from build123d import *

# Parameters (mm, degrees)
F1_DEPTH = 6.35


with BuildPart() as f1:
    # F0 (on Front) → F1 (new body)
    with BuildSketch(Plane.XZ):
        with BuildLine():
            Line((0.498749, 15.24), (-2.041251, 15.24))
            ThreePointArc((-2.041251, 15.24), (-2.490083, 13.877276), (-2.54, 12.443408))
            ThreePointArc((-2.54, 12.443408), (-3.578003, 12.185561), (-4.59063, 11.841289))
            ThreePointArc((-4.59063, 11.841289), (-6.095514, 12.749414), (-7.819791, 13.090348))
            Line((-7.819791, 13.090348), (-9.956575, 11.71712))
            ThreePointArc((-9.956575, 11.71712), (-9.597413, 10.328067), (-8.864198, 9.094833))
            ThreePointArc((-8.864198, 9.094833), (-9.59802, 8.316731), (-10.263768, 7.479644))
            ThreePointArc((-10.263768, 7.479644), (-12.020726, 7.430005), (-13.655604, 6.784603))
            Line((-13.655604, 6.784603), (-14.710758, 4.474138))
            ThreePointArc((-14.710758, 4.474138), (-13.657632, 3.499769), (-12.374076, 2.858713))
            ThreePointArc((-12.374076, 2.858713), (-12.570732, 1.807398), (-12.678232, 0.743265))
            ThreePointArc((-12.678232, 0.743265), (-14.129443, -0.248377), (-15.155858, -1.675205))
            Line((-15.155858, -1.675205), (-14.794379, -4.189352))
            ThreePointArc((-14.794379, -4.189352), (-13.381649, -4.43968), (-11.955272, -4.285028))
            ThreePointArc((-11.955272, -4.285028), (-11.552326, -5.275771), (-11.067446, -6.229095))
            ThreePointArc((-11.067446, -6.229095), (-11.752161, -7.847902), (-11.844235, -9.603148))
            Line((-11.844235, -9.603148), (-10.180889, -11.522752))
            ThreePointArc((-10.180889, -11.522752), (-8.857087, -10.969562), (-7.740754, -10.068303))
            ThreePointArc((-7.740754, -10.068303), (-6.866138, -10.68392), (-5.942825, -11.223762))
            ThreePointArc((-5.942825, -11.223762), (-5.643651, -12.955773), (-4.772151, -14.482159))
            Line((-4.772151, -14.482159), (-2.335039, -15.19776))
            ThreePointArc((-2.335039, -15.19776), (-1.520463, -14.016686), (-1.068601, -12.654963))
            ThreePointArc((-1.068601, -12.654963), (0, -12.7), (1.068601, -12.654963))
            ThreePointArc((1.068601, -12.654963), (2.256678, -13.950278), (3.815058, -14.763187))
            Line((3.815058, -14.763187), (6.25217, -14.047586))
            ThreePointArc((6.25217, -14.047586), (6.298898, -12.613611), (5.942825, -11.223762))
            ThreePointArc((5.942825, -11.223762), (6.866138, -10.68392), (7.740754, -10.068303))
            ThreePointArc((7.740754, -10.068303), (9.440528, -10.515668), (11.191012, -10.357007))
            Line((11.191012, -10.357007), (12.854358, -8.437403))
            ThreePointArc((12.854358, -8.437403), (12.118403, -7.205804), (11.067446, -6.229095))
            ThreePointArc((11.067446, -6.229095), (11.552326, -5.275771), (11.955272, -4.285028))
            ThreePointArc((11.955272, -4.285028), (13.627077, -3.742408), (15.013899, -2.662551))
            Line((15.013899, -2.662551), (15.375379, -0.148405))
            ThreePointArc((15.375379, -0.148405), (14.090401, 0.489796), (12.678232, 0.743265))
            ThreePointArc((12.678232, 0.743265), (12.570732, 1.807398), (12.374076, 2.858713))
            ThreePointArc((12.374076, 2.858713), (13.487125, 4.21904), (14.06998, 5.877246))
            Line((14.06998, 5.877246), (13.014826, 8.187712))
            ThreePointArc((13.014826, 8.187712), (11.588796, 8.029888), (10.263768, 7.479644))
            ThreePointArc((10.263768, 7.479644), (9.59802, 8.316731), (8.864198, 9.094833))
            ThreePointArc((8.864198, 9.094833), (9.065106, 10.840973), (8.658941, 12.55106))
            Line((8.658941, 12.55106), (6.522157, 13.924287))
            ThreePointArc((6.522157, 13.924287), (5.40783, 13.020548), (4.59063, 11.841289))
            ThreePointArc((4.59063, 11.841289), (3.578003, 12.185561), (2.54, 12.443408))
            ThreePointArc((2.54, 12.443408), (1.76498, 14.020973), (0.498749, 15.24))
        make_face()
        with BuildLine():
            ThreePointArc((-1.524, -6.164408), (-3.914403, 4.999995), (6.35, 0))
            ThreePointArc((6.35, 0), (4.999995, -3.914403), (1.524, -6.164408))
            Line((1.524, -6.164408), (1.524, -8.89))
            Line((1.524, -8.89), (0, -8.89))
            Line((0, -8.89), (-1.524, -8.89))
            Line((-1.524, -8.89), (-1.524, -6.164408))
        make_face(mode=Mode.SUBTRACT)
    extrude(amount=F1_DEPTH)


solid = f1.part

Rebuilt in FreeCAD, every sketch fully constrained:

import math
import FreeCAD as App
import Part
import Sketcher

V = App.Vector
Q = App.Units.Quantity

doc = App.newDocument("Part")
body = doc.addObject("PartDesign::Body", "Body")

# Sketch on XZ plane
sketch1 = doc.addObject("Sketcher::SketchObject", "Sketch")
body.addObject(sketch1)
sketch1.AttachmentSupport = (doc.XZ_Plane, [""])
sketch1.MapMode = "FlatFace"
sketch1.addGeometry([
    Part.LineSegment(V(0.498749, 15.24, 0), V(-2.041251, 15.24, 0)),  # 0
    Part.ArcOfCircle(Part.Circle(V(2.511018, 12.985371, 0), V(0, 0, 1), 5.080011), math.radians(153.651893), math.radians(186.124275)),  # 1
    Part.ArcOfCircle(Part.Circle(V(0.000009, -0.000037, 0), V(0, 0, 1), 12.700039), math.radians(101.536967), math.radians(111.190291)),  # 2
    Part.ArcOfCircle(Part.Circle(V(-7.928164, 8.01151, 0), V(0, 0, 1), 5.079994), math.radians(48.928856), math.radians(88.7776)),  # 3
    Part.LineSegment(V(-7.819791, 13.090348, 0), V(-9.956575, 11.71712, 0)),  # 4
    Part.ArcOfCircle(Part.Circle(V(-4.908026, 12.281543, 0), V(0, 0, 1), 5.080002), math.radians(-173.62087), math.radians(-141.148433)),  # 5
    Part.ArcOfCircle(Part.Circle(V(-0.000017, 0.00001, 0), V(0, 0, 1), 12.699981), math.radians(134.264209), math.radians(143.917578)),  # 6
    Part.ArcOfCircle(Part.Circle(V(-11.000943, 2.453408, 0), V(0, 0, 1), 5.080008), math.radians(81.65618), math.radians(121.50482)),  # 7
    Part.LineSegment(V(-13.655604, 6.784603, 0), V(-14.710758, 4.474138, 0)),  # 8
    Part.ArcOfCircle(Part.Circle(V(-10.7688, 7.67841, 0), V(0, 0, 1), 5.079999), math.radians(-140.893609), math.radians(-108.421147)),  # 9
    Part.ArcOfCircle(Part.Circle(V(0.000139, -0.000023, 0), V(0, 0, 1), 12.70014), math.radians(166.991545), math.radians(176.644792)),  # 10
    Part.ArcOfCircle(Part.Circle(V(-10.581003, -3.883612, 0), V(0, 0, 1), 5.079996), math.radians(114.383408), math.radians(154.232132)),  # 11
    Part.LineSegment(V(-15.155858, -1.675205, 0), V(-14.794379, -4.189352, 0)),  # 12
    Part.ArcOfCircle(Part.Circle(V(-13.210554, 0.637446, 0), V(0, 0, 1), 5.080008), math.radians(-108.166304), math.radians(-75.693894)),  # 13
    Part.ArcOfCircle(Part.Circle(V(-0.000063, -0.000027, 0), V(0, 0, 1), 12.699932), math.radians(-160.28124), math.radians(-150.627834)),  # 14
    Part.ArcOfCircle(Part.Circle(V(-6.801667, -8.987625, 0), V(0, 0, 1), 5.079996), math.radians(147.110662), math.radians(186.959399)),  # 15
    Part.LineSegment(V(-11.844235, -9.603148, 0), V(-10.180889, -11.522752, 0)),  # 16
    Part.ArcOfCircle(Part.Circle(V(-11.45805, -6.605916, 0), V(0, 0, 1), 5.080001), math.radians(-75.439056), math.radians(-42.966606)),  # 17
    Part.ArcOfCircle(Part.Circle(V(0.000016, 0.000023, 0), V(0, 0, 1), 12.700028), math.radians(-127.553945), math.radians(-117.900609)),  # 18
    Part.ArcOfCircle(Part.Circle(V(-0.86285, -11.238131, 0), V(0, 0, 1), 5.079995), math.radians(179.837937), math.radians(219.68667)),  # 19
    Part.LineSegment(V(-4.772151, -14.482159, 0), V(-2.335039, -15.19776, 0)),  # 20
    Part.ArcOfCircle(Part.Circle(V(-6.067697, -11.75194, 0), V(0, 0, 1), 5.080001), math.radians(-42.711791), math.radians(-10.239335)),  # 21
    Part.ArcOfCircle(Part.Circle(V(0, -0.000037, 0), V(0, 0, 1), 12.699963), math.radians(-94.826692), math.radians(-85.173308)),  # 22
    Part.ArcOfCircle(Part.Circle(V(5.349913, -9.920613, 0), V(0, 0, 1), 5.07999), math.radians(-147.434809), math.radians(-107.586024)),  # 23
    Part.LineSegment(V(3.815058, -14.763187, 0), V(6.25217, -14.047586, 0)),  # 24
    Part.ArcOfCircle(Part.Circle(V(1.249115, -13.166806, 0), V(0, 0, 1), 5.079994), math.radians(-9.984522), math.radians(22.487969)),  # 25
    Part.ArcOfCircle(Part.Circle(V(-0.000016, 0.000023, 0), V(0, 0, 1), 12.700028), math.radians(-62.099391), math.radians(-52.446055)),  # 26
    Part.ArcOfCircle(Part.Circle(V(9.864122, -5.453366, 0), V(0, 0, 1), 5.079994), math.radians(-114.707516), math.radians(-74.858769)),  # 27
    Part.LineSegment(V(11.191012, -10.357007, 0), V(12.854358, -8.437403, 0)),  # 28
    Part.ArcOfCircle(Part.Circle(V(8.169326, -10.401305, 0), V(0, 0, 1), 5.080004), math.radians(22.742772), math.radians(55.215202)),  # 29
    Part.ArcOfCircle(Part.Circle(V(0.000063, -0.000027, 0), V(0, 0, 1), 12.699932), math.radians(-29.372166), math.radians(-19.71876)),  # 30
    Part.ArcOfCircle(Part.Circle(V(11.246539, 0.745284, 0), V(0, 0, 1), 5.079995), math.radians(-81.980242), math.radians(-42.131501)),  # 31
    Part.LineSegment(V(15.013899, -2.662551, 0), V(15.375379, -0.148405, 0)),  # 32
    Part.ArcOfCircle(Part.Circle(V(12.495849, -4.333447, 0), V(0, 0, 1), 5.079987), math.radians(55.469975), math.radians(87.942514)),  # 33
    Part.ArcOfCircle(Part.Circle(V(-0.000139, -0.000023, 0), V(0, 0, 1), 12.70014), math.radians(3.355208), math.radians(13.008455)),  # 34
    Part.ArcOfCircle(Part.Circle(V(9.058252, 6.707316, 0), V(0, 0, 1), 5.080004), math.radians(-49.252942), math.radians(-9.404272)),  # 35
    Part.LineSegment(V(14.06998, 5.877246, 0), V(13.014826, 8.187712, 0)),  # 36
    Part.ArcOfCircle(Part.Circle(V(12.855023, 3.110217, 0), V(0, 0, 1), 5.080009), math.radians(88.197332), math.radians(120.669729)),  # 37
    Part.ArcOfCircle(Part.Circle(V(0.000017, 0.00001, 0), V(0, 0, 1), 12.699981), math.radians(36.082422), math.radians(45.735791)),  # 38
    Part.ArcOfCircle(Part.Circle(V(3.994035, 10.539814, 0), V(0, 0, 1), 5.080006), math.radians(-16.525662), math.radians(23.322995)),  # 39
    Part.LineSegment(V(8.658941, 12.55106, 0), V(6.522157, 13.924287, 0)),  # 40
    Part.ArcOfCircle(Part.Circle(V(9.132811, 9.56644, 0), V(0, 0, 1), 5.079995), math.radians(120.924544), math.radians(153.397031)),  # 41
    Part.ArcOfCircle(Part.Circle(V(-0.000009, -0.000037, 0), V(0, 0, 1), 12.700039), math.radians(68.809709), math.radians(78.463033)),  # 42
    Part.ArcOfCircle(Part.Circle(V(-2.338255, 11.025995, 0), V(0, 0, 1), 5.080003), math.radians(16.201615), math.radians(56.050292)),  # 43
    Part.LineSegment(V(-1.524, -8.89, 0), V(-1.524, -6.164408, 0)),  # 44
    Part.ArcOfCircle(Part.Circle(V(0, 0, 0), V(0, 0, 1), 6.35), math.radians(0.000001), math.radians(256.11346)),  # 45
    Part.ArcOfCircle(Part.Circle(V(0, 0, 0), V(0, 0, 1), 6.35), math.radians(-76.113459), math.radians(0.000001)),  # 46
    Part.LineSegment(V(1.524, -6.164408, 0), V(1.524, -8.89, 0)),  # 47
    Part.LineSegment(V(1.524, -8.89, 0), V(-1.524, -8.89, 0)),  # 48
], False)
sketch1.addConstraint([
    Sketcher.Constraint("Coincident", 0, 2, 1, 1),
    Sketcher.Constraint("Coincident", 1, 2, 2, 1),
    Sketcher.Constraint("Coincident", 2, 2, 3, 1),
    Sketcher.Constraint("Coincident", 3, 2, 4, 1),
    Sketcher.Constraint("Coincident", 4, 2, 5, 1),
    Sketcher.Constraint("Coincident", 5, 2, 6, 1),
    Sketcher.Constraint("Coincident", 6, 2, 7, 1),
    Sketcher.Constraint("Coincident", 7, 2, 8, 1),
    Sketcher.Constraint("Coincident", 8, 2, 9, 1),
    Sketcher.Constraint("Coincident", 9, 2, 10, 1),
    Sketcher.Constraint("Coincident", 10, 2, 11, 1),
    Sketcher.Constraint("Coincident", 11, 2, 12, 1),
    Sketcher.Constraint("Coincident", 12, 2, 13, 1),
    Sketcher.Constraint("Coincident", 13, 2, 14, 1),
    Sketcher.Constraint("Coincident", 14, 2, 15, 1),
    Sketcher.Constraint("Coincident", 15, 2, 16, 1),
    Sketcher.Constraint("Coincident", 16, 2, 17, 1),
    Sketcher.Constraint("Coincident", 17, 2, 18, 1),
    Sketcher.Constraint("Coincident", 18, 2, 19, 1),
    Sketcher.Constraint("Coincident", 19, 2, 20, 1),
    Sketcher.Constraint("Coincident", 20, 2, 21, 1),
    Sketcher.Constraint("Coincident", 21, 2, 22, 1),
    Sketcher.Constraint("Coincident", 22, 2, 23, 1),
    Sketcher.Constraint("Coincident", 23, 2, 24, 1),
    Sketcher.Constraint("Coincident", 24, 2, 25, 1),
    Sketcher.Constraint("Coincident", 25, 2, 26, 1),
    Sketcher.Constraint("Coincident", 26, 2, 27, 1),
    Sketcher.Constraint("Coincident", 27, 2, 28, 1),
    Sketcher.Constraint("Coincident", 28, 2, 29, 1),
    Sketcher.Constraint("Coincident", 29, 2, 30, 1),
    Sketcher.Constraint("Coincident", 30, 2, 31, 1),
    Sketcher.Constraint("Coincident", 31, 2, 32, 1),
    Sketcher.Constraint("Coincident", 32, 2, 33, 1),
    Sketcher.Constraint("Coincident", 33, 2, 34, 1),
    Sketcher.Constraint("Coincident", 34, 2, 35, 1),
    Sketcher.Constraint("Coincident", 35, 2, 36, 1),
    Sketcher.Constraint("Coincident", 36, 2, 37, 1),
    Sketcher.Constraint("Coincident", 37, 2, 38, 1),
    Sketcher.Constraint("Coincident", 38, 2, 39, 1),
    Sketcher.Constraint("Coincident", 39, 2, 40, 1),
    Sketcher.Constraint("Coincident", 40, 2, 41, 1),
    Sketcher.Constraint("Coincident", 41, 2, 42, 1),
    Sketcher.Constraint("Coincident", 42, 2, 43, 1),
    Sketcher.Constraint("Coincident", 43, 2, 0, 1),
    Sketcher.Constraint("Coincident", 44, 2, 45, 2),
    Sketcher.Constraint("Tangent", 45, 1, 46, 2),
    Sketcher.Constraint("Coincident", 46, 1, 47, 1),
    Sketcher.Constraint("Coincident", 47, 2, 48, 1),
    Sketcher.Constraint("Coincident", 48, 2, 44, 1),
    Sketcher.Constraint("Horizontal", 0),
    Sketcher.Constraint("Vertical", 44),
    Sketcher.Constraint("Vertical", 47),
    Sketcher.Constraint("Horizontal", 48),
    Sketcher.Constraint("Coincident", 45, 3, -1, 1),
    Sketcher.Constraint("Coincident", 22, 3, 2, 3),
    Sketcher.Constraint("Coincident", 42, 3, 22, 3),
    Sketcher.Constraint("Equal", 7, 13),
    Sketcher.Constraint("Equal", 11, 15),
    Sketcher.Constraint("Equal", 9, 17),
    Sketcher.Constraint("Equal", 15, 19),
    Sketcher.Constraint("Equal", 17, 21),
    Sketcher.Constraint("Equal", 19, 25),
    Sketcher.Constraint("Equal", 18, 26),
    Sketcher.Constraint("Equal", 25, 27),
    Sketcher.Constraint("Equal", 5, 29),
    Sketcher.Constraint("Equal", 14, 30),
    Sketcher.Constraint("Equal", 27, 31),
    Sketcher.Constraint("Equal", 10, 34),
    Sketcher.Constraint("Equal", 29, 35),
    Sketcher.Constraint("Equal", 13, 37),
    Sketcher.Constraint("Equal", 6, 38),
    Sketcher.Constraint("Equal", 13, 39),
    Sketcher.Constraint("Equal", 31, 41),
    Sketcher.Constraint("Equal", 2, 42),
    Sketcher.Constraint("Equal", 35, 43),
    Sketcher.Constraint("Equal", 45, 46),
    Sketcher.Constraint("Symmetric", 18, 3, 26, 3, -2),
    Sketcher.Constraint("Symmetric", 14, 3, 30, 3, -2),
    Sketcher.Constraint("Symmetric", 10, 3, 34, 3, -2),
    Sketcher.Constraint("Symmetric", 6, 3, 38, 3, -2),
    Sketcher.Constraint("Symmetric", 21, 2, 22, 2, -2),
    Sketcher.Constraint("PointOnObject", 45, 1, -1),
    Sketcher.Constraint("Horizontal", 18, 2, 25, 2),
    Sketcher.Constraint("Horizontal", 17, 2, 26, 2),
    Sketcher.Constraint("Horizontal", 14, 2, 29, 2),
    Sketcher.Constraint("Horizontal", 13, 2, 30, 2),
    Sketcher.Constraint("Horizontal", 10, 2, 33, 2),
    Sketcher.Constraint("Horizontal", 9, 2, 34, 2),
    Sketcher.Constraint("Horizontal", 6, 2, 37, 2),
    Sketcher.Constraint("Horizontal", 5, 2, 38, 2),
    Sketcher.Constraint("Horizontal", 2, 2, 41, 2),
    Sketcher.Constraint("Horizontal", 1, 2, 42, 2),
    Sketcher.Constraint("Horizontal", 44, 2, 46, 1),
    Sketcher.Constraint("Vertical", 6, 3, 26, 3),
    Sketcher.Constraint("Equal", 4, 8),
    Sketcher.Constraint("Equal", 8, 12),
    Sketcher.Constraint("Equal", 12, 16),
    Sketcher.Constraint("Equal", 16, 20),
    Sketcher.Constraint("Equal", 20, 24),
    Sketcher.Constraint("Equal", 24, 28),
    Sketcher.Constraint("Equal", 28, 32),
    Sketcher.Constraint("Equal", 32, 36),
    Sketcher.Constraint("Equal", 36, 40),
    Sketcher.Constraint("Radius", 5, Q("0.2000001 in")),
    Sketcher.Constraint("Radius", 9, Q("0.2 in")),
    Sketcher.Constraint("Radius", 11, Q("0.1999998 in")),
    Sketcher.Constraint("Radius", 45, Q("0.25 in")),
    Sketcher.Constraint("DistanceX", 0, 2, 0, 1, Q("0.1 in")),
    Sketcher.Constraint("Distance", 4, Q("0.1 in")),
    Sketcher.Constraint("DistanceX", 48, 2, 48, 1, Q("0.12 in")),
    Sketcher.Constraint("DistanceY", -1, 1, 0, 2, Q("0.6 in")),
    Sketcher.Constraint("DistanceX", 1, 2, -1, 1, Q("0.1 in")),
    Sketcher.Constraint("DistanceY", 47, 2, -1, 1, Q("0.35 in")),
    Sketcher.Constraint("Radius", 1, Q("5.080011 mm")),
    Sketcher.Constraint("Radius", 2, Q("12.700039 mm")),
    Sketcher.Constraint("Radius", 6, Q("12.699981 mm")),
    Sketcher.Constraint("Radius", 10, Q("12.70014 mm")),
    Sketcher.Constraint("Radius", 14, Q("12.699932 mm")),
    Sketcher.Constraint("Radius", 23, Q("5.07999 mm")),
    Sketcher.Constraint("Radius", 37, Q("5.080009 mm")),
    Sketcher.Constraint("Radius", 3, Q("5.079994 mm")),
    Sketcher.Constraint("Radius", 18, Q("12.700028 mm")),
    Sketcher.Constraint("Radius", 22, Q("12.699963 mm")),
    Sketcher.Constraint("Radius", 33, Q("5.079987 mm")),
    Sketcher.Constraint("DistanceX", 9, 3, -1, 1, Q("10.7688 mm")),
    Sketcher.Constraint("DistanceX", 5, 2, -1, 1, Q("8.864198 mm")),
    Sketcher.Constraint("DistanceX", 21, 2, -1, 1, Q("1.068601 mm")),
    Sketcher.Constraint("DistanceX", -1, 1, 31, 2, Q("15.013899 mm")),
    Sketcher.Constraint("DistanceX", -1, 1, 1, 3, Q("2.511018 mm")),
    Sketcher.Constraint("DistanceY", -1, 1, 1, 3, Q("12.985371 mm")),
    Sketcher.Constraint("DistanceY", -1, 1, 3, 3, Q("8.01151 mm")),
    Sketcher.Constraint("DistanceY", -1, 1, 9, 3, Q("7.67841 mm")),
    Sketcher.Constraint("DistanceX", -1, 1, 10, 3, Q("0.000139 mm")),
    Sketcher.Constraint("DistanceX", 17, 3, -1, 1, Q("11.45805 mm")),
    Sketcher.Constraint("DistanceX", 19, 3, -1, 1, Q("0.86285 mm")),
    Sketcher.Constraint("DistanceY", 19, 3, -1, 1, Q("11.238131 mm")),
    Sketcher.Constraint("DistanceY", 21, 3, -1, 1, Q("11.75194 mm")),
    Sketcher.Constraint("DistanceX", -1, 1, 27, 3, Q("9.864122 mm")),
    Sketcher.Constraint("DistanceX", -1, 1, 31, 3, Q("11.246539 mm")),
    Sketcher.Constraint("DistanceX", -1, 1, 33, 3, Q("12.495849 mm")),
    Sketcher.Constraint("DistanceX", -1, 1, 35, 3, Q("9.058252 mm")),
    Sketcher.Constraint("DistanceX", -1, 1, 41, 3, Q("9.132811 mm")),
    Sketcher.Constraint("DistanceY", -1, 1, 41, 3, Q("9.56644 mm")),
    Sketcher.Constraint("DistanceX", 3, 2, -1, 1, Q("7.819791 mm")),
    Sketcher.Constraint("DistanceY", -1, 1, 4, 2, Q("11.71712 mm")),
    Sketcher.Constraint("DistanceX", 10, 2, -1, 1, Q("12.678232 mm")),
    Sketcher.Constraint("DistanceX", 11, 2, -1, 1, Q("15.155858 mm")),
    Sketcher.Constraint("DistanceX", 12, 2, -1, 1, Q("14.794379 mm")),
    Sketcher.Constraint("DistanceX", 13, 2, -1, 1, Q("11.955272 mm")),
    Sketcher.Constraint("DistanceY", 13, 2, -1, 1, Q("4.285028 mm")),
    Sketcher.Constraint("DistanceY", 15, 2, -1, 1, Q("9.603148 mm")),
    Sketcher.Constraint("DistanceX", 16, 2, -1, 1, Q("10.180889 mm")),
    Sketcher.Constraint("DistanceY", 18, 2, -1, 1, Q("11.223762 mm")),
    Sketcher.Constraint("DistanceX", 19, 2, -1, 1, Q("4.772151 mm")),
    Sketcher.Constraint("DistanceX", -1, 1, 24, 2, Q("6.25217 mm")),
    Sketcher.Constraint("DistanceX", -1, 1, 27, 2, Q("11.191012 mm")),
    Sketcher.Constraint("DistanceX", -1, 1, 32, 2, Q("15.375379 mm")),
    Sketcher.Constraint("DistanceX", -1, 1, 35, 2, Q("14.06998 mm")),
    Sketcher.Constraint("DistanceX", -1, 1, 39, 2, Q("8.658941 mm")),
    Sketcher.Constraint("DistanceY", -1, 1, 39, 2, Q("12.55106 mm")),
    Sketcher.Constraint("DistanceX", 5, 3, -1, 1, Q("4.908026 mm")),
    Sketcher.Constraint("DistanceX", 7, 3, -1, 1, Q("11.000943 mm")),
    Sketcher.Constraint("DistanceY", -1, 1, 7, 3, Q("2.453408 mm")),
    Sketcher.Constraint("DistanceX", 11, 3, -1, 1, Q("10.581003 mm")),
    Sketcher.Constraint("DistanceX", 15, 3, -1, 1, Q("6.801667 mm")),
    Sketcher.Constraint("DistanceY", 15, 3, -1, 1, Q("8.987625 mm")),
    Sketcher.Constraint("DistanceX", -1, 1, 23, 3, Q("5.349913 mm")),
    Sketcher.Constraint("DistanceX", -1, 1, 25, 3, Q("1.249115 mm")),
    Sketcher.Constraint("DistanceY", 27, 3, -1, 1, Q("5.453366 mm")),
    Sketcher.Constraint("DistanceX", -1, 1, 29, 3, Q("8.169326 mm")),
    Sketcher.Constraint("DistanceY", 29, 3, -1, 1, Q("10.401305 mm")),
    Sketcher.Constraint("DistanceX", -1, 1, 37, 3, Q("12.855023 mm")),
    Sketcher.Constraint("DistanceX", 7, 2, -1, 1, Q("13.655604 mm")),
])
pad1 = doc.addObject("PartDesign::Pad", "Pad")
body.addObject(pad1)
pad1.Profile = sketch1
pad1.Length = Q("0.25 in")

doc.recompute()
